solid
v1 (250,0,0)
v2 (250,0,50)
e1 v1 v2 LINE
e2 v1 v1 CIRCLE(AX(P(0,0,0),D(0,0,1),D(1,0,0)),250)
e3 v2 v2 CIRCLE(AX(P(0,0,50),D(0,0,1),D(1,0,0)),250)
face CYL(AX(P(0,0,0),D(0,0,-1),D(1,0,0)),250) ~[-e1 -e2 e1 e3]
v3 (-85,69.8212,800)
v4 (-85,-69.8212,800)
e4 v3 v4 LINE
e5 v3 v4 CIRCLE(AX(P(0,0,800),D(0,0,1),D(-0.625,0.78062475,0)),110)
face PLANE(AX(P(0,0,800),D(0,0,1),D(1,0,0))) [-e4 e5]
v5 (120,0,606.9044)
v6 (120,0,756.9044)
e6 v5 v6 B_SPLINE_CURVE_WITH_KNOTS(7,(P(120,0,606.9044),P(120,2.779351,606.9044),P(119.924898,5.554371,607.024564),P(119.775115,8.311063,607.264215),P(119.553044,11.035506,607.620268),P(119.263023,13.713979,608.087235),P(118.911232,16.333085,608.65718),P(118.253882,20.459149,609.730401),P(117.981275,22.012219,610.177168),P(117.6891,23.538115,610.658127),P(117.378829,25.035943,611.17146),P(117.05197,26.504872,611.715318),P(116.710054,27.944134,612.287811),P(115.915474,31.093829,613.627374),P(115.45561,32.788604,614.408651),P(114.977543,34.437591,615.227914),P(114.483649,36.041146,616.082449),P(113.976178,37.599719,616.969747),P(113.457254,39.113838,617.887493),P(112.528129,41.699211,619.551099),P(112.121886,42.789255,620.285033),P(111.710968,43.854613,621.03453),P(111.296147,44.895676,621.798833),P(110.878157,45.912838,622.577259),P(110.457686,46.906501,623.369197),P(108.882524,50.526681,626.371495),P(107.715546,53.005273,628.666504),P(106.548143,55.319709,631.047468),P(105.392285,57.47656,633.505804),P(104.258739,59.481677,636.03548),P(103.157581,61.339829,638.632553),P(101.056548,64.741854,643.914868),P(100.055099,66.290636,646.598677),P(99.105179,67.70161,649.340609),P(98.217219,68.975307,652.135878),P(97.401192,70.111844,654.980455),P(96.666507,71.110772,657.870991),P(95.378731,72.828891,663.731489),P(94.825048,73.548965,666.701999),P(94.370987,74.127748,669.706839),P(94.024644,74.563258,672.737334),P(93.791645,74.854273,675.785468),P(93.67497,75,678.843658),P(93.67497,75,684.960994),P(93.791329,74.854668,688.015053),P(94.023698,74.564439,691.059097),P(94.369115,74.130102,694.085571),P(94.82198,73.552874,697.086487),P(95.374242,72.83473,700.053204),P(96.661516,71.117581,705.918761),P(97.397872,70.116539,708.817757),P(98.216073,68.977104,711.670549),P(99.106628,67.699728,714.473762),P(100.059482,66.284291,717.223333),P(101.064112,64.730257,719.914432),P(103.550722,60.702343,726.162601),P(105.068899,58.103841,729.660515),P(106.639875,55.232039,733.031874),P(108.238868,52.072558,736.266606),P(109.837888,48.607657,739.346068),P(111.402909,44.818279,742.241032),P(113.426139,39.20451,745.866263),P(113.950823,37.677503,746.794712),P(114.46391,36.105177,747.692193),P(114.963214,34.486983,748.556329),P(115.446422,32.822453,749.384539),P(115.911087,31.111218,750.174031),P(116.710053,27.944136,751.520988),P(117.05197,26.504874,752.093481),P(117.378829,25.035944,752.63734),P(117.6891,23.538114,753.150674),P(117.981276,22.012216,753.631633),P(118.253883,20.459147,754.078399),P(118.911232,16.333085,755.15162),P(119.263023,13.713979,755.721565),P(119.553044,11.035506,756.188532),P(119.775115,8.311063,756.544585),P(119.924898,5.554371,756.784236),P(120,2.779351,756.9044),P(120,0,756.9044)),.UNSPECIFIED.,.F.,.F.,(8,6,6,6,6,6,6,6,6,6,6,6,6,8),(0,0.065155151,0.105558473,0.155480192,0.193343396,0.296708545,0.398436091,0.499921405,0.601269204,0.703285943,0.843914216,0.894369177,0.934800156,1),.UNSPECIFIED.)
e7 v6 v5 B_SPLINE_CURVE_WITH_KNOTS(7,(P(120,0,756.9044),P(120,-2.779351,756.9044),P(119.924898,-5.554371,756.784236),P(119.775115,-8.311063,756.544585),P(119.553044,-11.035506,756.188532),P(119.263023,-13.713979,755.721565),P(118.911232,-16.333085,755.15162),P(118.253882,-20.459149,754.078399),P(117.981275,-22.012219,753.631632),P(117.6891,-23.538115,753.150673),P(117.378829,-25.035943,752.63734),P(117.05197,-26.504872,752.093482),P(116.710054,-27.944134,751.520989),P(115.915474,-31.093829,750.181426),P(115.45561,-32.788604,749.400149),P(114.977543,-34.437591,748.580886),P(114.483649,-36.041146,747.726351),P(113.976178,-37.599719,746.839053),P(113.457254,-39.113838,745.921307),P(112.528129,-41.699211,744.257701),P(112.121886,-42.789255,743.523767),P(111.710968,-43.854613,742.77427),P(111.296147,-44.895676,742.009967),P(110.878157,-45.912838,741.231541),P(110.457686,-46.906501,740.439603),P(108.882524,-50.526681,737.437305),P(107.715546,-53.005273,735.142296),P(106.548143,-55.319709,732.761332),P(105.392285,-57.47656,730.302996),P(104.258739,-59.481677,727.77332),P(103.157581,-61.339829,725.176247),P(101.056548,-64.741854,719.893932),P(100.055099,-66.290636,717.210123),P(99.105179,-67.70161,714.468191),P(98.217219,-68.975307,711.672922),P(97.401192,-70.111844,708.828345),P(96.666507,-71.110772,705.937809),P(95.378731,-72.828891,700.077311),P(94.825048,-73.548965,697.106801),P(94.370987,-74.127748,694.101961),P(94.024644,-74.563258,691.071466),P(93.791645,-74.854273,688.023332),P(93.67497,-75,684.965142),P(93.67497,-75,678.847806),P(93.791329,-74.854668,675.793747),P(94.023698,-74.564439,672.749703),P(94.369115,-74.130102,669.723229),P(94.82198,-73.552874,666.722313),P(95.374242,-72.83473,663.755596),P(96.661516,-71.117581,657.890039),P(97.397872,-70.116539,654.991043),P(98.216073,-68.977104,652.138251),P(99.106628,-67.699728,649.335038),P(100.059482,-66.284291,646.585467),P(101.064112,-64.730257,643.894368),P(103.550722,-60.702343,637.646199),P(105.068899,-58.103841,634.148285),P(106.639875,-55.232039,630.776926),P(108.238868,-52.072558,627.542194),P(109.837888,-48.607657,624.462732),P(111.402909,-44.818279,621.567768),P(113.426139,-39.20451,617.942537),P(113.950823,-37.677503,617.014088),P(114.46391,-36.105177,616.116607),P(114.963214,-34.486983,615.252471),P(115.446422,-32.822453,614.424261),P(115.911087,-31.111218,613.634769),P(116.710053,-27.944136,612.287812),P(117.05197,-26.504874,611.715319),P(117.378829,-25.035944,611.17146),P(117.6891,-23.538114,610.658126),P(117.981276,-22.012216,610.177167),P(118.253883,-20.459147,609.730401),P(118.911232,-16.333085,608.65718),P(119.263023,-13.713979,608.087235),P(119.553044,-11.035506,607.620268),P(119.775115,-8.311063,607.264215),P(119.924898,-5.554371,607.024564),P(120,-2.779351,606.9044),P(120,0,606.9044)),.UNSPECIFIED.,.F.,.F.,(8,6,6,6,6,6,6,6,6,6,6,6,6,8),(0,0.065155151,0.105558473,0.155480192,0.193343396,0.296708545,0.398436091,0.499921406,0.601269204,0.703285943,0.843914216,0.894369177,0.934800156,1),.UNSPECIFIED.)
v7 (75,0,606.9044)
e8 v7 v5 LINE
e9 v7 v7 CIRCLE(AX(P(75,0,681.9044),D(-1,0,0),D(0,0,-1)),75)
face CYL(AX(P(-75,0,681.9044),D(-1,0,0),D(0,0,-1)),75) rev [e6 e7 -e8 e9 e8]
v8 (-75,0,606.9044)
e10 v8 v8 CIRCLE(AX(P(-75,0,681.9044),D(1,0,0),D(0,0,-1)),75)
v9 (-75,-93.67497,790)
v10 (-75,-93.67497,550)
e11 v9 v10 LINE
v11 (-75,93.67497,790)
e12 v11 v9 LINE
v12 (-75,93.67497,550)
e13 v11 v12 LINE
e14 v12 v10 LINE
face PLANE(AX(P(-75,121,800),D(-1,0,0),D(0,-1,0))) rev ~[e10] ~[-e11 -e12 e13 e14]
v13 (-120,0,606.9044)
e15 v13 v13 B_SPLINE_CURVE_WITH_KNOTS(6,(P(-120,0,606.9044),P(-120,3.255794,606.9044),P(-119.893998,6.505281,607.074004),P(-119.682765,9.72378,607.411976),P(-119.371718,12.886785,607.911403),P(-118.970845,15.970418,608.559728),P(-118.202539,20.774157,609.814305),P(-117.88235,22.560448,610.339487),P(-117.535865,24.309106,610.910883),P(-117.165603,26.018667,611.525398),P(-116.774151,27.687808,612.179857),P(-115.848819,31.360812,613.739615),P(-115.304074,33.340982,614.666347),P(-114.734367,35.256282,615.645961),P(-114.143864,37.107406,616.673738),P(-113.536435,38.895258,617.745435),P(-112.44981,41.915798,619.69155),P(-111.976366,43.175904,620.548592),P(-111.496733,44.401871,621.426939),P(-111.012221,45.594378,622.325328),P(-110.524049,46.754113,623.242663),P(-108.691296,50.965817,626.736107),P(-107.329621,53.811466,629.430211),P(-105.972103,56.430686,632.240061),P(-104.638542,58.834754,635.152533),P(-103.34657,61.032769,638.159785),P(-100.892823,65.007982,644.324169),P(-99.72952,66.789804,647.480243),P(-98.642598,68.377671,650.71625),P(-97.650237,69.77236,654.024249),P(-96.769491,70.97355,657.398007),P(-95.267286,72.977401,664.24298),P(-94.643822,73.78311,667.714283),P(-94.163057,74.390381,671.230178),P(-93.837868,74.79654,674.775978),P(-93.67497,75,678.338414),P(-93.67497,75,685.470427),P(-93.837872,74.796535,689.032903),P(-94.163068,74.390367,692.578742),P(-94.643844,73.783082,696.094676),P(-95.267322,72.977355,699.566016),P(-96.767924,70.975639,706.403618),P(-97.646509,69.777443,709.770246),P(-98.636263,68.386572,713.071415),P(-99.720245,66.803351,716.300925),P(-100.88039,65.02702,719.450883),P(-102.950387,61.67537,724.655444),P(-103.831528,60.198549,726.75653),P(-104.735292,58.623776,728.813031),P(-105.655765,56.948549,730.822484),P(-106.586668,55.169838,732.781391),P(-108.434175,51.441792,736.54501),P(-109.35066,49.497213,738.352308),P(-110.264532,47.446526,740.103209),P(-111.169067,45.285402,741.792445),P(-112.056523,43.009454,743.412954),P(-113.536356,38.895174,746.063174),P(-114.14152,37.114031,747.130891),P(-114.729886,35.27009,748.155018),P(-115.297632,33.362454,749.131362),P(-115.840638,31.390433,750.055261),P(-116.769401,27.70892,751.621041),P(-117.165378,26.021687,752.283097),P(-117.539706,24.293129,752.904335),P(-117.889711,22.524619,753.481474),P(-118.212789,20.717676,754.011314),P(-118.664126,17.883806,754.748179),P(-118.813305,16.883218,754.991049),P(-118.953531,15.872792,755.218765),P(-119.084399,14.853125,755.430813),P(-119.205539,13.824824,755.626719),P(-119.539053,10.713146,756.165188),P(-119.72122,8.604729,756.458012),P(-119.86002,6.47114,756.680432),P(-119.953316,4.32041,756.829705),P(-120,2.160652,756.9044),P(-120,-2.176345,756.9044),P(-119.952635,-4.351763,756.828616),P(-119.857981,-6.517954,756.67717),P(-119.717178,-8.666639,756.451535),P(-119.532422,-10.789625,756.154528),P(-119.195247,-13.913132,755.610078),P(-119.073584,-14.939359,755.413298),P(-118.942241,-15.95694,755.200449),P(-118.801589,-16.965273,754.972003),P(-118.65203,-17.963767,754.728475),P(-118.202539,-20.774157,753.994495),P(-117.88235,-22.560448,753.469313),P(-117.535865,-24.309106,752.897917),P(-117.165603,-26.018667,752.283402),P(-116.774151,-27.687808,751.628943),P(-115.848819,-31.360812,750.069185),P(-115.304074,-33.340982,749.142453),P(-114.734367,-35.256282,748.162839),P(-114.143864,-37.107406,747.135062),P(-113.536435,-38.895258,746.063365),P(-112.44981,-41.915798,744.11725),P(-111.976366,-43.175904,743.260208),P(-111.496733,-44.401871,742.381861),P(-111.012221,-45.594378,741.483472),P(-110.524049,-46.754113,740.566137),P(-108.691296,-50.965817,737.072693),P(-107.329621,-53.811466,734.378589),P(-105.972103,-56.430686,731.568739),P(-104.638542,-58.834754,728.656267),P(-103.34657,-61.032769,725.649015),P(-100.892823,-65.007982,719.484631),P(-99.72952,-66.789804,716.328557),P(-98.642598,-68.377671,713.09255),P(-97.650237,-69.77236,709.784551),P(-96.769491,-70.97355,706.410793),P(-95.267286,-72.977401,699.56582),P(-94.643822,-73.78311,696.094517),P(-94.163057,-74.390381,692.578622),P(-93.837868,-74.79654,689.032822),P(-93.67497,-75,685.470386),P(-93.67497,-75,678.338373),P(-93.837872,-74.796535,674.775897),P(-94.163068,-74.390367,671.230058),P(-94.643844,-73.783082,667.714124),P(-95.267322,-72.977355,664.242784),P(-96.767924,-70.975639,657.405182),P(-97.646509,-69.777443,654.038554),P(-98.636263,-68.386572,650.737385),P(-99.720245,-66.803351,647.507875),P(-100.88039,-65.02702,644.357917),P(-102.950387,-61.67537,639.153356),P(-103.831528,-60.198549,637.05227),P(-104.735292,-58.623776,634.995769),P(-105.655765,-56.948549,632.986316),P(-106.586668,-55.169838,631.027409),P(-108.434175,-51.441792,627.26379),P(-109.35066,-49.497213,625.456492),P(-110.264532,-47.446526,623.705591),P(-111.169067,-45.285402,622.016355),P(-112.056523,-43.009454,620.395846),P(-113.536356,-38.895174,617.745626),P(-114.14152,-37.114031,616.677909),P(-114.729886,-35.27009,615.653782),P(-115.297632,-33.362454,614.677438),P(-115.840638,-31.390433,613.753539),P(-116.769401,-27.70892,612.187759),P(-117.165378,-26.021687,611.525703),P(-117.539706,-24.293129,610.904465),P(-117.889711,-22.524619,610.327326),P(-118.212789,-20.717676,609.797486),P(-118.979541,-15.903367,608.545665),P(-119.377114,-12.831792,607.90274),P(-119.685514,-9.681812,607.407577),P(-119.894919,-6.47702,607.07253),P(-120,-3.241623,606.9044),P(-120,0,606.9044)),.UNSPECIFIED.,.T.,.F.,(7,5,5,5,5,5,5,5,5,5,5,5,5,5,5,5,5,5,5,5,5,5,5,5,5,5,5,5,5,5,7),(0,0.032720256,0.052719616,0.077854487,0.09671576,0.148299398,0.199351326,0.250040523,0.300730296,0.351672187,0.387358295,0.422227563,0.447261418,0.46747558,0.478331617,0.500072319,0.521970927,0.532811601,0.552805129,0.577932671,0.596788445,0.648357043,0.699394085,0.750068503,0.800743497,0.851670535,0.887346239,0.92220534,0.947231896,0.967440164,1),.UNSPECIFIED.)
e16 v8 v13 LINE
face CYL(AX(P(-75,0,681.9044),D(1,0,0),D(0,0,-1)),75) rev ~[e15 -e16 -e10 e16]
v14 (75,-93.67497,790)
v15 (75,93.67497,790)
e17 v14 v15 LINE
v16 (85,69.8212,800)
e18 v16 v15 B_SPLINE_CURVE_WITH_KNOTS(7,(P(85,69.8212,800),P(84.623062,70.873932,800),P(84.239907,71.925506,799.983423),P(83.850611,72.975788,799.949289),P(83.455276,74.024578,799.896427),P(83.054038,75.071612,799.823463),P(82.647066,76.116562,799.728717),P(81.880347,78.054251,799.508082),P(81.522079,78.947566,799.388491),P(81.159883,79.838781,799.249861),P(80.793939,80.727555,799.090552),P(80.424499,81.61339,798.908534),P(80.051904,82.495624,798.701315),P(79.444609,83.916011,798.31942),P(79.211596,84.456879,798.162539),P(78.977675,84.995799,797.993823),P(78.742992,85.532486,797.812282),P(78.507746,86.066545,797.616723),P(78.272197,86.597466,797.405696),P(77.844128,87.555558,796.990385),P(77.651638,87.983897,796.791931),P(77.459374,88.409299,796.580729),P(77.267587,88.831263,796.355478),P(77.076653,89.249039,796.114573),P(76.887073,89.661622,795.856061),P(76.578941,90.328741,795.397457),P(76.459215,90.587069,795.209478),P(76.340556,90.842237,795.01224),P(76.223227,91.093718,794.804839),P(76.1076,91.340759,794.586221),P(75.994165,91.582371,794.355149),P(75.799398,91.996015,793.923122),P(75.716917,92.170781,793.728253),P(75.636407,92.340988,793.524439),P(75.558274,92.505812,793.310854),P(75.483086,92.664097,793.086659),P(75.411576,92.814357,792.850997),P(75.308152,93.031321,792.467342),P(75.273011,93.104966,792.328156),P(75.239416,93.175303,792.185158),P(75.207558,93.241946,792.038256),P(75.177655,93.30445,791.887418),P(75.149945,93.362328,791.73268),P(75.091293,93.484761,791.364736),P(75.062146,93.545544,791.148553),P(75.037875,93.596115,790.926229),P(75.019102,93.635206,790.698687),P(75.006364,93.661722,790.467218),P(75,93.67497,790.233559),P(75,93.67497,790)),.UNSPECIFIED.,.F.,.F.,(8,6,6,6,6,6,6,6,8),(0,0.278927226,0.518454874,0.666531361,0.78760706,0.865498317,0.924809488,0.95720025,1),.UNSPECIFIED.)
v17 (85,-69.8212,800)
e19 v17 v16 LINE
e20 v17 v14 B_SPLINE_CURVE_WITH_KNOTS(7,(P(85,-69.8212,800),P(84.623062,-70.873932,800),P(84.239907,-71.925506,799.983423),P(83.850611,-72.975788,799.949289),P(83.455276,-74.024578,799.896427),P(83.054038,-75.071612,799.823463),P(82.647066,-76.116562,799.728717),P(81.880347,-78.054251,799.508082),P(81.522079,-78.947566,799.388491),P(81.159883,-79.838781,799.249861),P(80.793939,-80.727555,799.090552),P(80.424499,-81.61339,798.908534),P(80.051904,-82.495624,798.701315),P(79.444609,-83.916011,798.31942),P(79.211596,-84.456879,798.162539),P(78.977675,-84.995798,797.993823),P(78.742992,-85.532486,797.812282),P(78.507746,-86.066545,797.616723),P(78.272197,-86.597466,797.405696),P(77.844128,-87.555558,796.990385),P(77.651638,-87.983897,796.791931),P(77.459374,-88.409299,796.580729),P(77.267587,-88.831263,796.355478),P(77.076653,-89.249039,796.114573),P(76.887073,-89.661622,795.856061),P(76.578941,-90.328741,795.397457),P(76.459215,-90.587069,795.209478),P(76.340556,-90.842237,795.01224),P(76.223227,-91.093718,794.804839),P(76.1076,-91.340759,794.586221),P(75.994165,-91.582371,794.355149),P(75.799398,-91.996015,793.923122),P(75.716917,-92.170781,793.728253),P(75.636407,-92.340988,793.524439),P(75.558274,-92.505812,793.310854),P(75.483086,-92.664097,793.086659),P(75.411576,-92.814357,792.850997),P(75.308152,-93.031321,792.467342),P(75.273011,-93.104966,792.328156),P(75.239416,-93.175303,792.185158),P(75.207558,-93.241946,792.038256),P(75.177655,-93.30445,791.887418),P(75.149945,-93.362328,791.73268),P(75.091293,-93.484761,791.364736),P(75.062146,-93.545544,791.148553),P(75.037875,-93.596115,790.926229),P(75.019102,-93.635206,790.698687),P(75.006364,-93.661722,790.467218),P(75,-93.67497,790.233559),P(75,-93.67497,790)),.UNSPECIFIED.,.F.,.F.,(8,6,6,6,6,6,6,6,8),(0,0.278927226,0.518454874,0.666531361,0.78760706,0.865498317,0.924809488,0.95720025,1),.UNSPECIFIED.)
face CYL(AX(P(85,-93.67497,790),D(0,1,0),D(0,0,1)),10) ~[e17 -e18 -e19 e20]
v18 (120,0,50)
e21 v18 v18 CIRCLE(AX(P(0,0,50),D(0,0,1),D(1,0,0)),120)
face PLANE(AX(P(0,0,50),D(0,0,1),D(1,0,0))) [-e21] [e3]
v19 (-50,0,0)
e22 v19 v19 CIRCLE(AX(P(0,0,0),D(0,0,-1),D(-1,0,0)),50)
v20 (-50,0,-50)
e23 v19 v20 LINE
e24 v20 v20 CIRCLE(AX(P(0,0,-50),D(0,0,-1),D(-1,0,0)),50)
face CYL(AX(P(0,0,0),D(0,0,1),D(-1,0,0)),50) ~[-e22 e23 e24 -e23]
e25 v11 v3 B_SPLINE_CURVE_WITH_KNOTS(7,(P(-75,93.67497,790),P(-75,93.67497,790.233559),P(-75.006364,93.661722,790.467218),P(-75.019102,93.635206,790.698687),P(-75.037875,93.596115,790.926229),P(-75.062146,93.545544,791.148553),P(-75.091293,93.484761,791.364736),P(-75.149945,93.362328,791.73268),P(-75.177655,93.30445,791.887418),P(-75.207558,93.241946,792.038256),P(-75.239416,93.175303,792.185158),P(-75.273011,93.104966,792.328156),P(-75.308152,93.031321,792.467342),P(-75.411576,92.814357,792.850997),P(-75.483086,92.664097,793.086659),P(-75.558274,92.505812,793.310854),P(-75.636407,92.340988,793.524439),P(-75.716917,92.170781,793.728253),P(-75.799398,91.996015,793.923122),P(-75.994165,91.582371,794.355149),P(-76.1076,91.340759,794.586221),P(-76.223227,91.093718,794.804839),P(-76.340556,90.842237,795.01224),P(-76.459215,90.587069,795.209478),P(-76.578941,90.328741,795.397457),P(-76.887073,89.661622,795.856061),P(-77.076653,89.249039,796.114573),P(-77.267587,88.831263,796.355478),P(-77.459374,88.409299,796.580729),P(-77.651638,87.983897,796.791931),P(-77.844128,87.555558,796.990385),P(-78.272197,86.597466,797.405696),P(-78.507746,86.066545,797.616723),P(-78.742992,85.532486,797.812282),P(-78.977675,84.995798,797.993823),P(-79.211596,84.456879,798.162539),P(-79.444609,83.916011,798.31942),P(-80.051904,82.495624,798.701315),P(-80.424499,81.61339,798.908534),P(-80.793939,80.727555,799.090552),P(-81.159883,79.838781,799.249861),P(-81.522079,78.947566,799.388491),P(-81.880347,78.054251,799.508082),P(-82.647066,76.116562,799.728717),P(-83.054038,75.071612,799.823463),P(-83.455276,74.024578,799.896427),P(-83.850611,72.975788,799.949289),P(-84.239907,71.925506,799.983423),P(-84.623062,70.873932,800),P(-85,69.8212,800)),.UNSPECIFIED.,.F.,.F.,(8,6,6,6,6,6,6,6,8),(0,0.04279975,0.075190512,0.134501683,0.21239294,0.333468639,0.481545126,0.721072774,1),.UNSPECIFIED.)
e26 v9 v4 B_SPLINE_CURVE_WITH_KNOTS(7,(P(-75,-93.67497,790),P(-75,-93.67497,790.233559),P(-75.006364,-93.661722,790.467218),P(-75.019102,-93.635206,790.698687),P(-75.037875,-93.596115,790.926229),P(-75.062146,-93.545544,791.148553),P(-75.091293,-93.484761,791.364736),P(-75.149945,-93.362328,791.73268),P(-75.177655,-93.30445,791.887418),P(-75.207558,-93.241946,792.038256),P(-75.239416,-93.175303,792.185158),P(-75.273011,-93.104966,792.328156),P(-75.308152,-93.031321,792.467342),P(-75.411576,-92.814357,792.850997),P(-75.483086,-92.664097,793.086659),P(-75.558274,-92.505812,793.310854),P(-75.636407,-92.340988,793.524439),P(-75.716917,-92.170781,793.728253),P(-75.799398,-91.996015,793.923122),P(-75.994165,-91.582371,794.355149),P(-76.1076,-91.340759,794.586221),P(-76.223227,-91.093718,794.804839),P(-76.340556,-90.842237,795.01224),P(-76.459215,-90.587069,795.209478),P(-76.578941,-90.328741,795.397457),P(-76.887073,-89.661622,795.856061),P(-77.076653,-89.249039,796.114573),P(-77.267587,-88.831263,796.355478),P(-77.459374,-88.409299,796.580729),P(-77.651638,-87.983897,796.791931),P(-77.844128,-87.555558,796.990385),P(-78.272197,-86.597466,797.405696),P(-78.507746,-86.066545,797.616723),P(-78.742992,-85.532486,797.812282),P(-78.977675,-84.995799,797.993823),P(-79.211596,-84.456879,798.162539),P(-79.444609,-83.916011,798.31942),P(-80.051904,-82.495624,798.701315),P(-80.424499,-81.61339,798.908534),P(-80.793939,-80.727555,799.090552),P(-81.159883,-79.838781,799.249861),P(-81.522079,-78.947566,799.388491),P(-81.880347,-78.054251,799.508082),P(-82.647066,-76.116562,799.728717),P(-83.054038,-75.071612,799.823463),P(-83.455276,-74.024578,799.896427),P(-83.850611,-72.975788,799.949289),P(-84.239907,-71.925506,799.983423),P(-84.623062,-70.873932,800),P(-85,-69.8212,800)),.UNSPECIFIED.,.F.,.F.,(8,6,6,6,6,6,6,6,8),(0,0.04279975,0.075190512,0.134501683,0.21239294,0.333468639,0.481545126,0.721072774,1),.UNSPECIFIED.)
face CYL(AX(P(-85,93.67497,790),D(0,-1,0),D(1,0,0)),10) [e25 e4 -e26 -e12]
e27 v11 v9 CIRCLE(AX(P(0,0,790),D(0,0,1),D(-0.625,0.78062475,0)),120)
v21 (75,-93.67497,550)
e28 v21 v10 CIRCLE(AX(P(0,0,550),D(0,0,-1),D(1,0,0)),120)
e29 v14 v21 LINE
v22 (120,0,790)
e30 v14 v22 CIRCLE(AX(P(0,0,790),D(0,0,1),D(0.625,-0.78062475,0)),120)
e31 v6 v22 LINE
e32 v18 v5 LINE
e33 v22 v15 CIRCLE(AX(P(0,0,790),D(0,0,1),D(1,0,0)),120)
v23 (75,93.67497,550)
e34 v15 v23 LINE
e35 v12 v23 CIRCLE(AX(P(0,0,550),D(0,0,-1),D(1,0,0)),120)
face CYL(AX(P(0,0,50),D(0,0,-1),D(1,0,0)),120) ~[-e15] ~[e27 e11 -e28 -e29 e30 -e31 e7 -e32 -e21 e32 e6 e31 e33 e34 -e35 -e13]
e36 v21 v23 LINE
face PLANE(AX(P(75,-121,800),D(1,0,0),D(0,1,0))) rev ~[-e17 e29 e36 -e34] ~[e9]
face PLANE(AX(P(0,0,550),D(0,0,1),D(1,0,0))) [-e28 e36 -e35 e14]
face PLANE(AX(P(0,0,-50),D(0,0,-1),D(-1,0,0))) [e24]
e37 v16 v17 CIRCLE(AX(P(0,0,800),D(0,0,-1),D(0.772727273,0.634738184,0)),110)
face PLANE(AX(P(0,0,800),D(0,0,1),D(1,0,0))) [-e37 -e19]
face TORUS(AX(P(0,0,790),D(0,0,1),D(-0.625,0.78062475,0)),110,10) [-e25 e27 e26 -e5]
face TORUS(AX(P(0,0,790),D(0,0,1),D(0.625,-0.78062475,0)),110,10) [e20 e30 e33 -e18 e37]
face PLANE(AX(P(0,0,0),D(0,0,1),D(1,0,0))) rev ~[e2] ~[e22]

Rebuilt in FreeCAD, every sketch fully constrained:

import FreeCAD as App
import Part
import Sketcher
from FreeCAD import Vector


def edges_at(feature, points):
    """Names of the edges that pass closest to the given points."""
    edges = feature.Shape.Edges
    near = lambda p: min(range(len(edges)), key=lambda i: edges[i].distToShape(Part.Vertex(*p))[0])
    return sorted({f"Edge{near(p) + 1}" for p in points})

doc = App.newDocument("Part")
body = doc.addObject("PartDesign::Body", "Body")

# Sketch on XY plane
sketch1 = body.newObject("Sketcher::SketchObject", "Sketch")
sketch1.AttachmentSupport = (doc.getObject("XY_Plane"), [""])
sketch1.MapMode = "FlatFace"
sketch1.addGeometry(Part.Circle(Vector(0, 0, 0), Vector(0, 0, 1), 250), False)
sketch1.addConstraint([
    Sketcher.Constraint("Coincident", 0, 3, -1, 1),
    Sketcher.Constraint("Diameter", 0, 500.0),
])
pad1 = body.newObject("PartDesign::Pad", "Pad")
pad1.Profile = sketch1
pad1.Length = 50

# Sketch on XY plane
sketch2 = body.newObject("Sketcher::SketchObject", "Sketch001")
sketch2.AttachmentSupport = (doc.getObject("XY_Plane"), [""])
sketch2.MapMode = "FlatFace"
sketch2.AttachmentOffset = App.Placement(Vector(0, 0, 50), App.Rotation())
sketch2.addGeometry(Part.Circle(Vector(0, 0, 0), Vector(0, 0, 1), 120), False)
sketch2.addConstraint([
    Sketcher.Constraint("Coincident", 0, 3, -1, 1),
    Sketcher.Constraint("Diameter", 0, 240.0),
])
pad2 = body.newObject("PartDesign::Pad", "Pad001")
pad2.Profile = sketch2
pad2.Length = 750

# Sketch on XY plane
sketch3 = body.newObject("Sketcher::SketchObject", "Sketch002")
sketch3.AttachmentSupport = (doc.getObject("XY_Plane"), [""])
sketch3.MapMode = "FlatFace"
sketch3.AttachmentOffset = App.Placement(Vector(0, 0, 800), App.Rotation())
sketch3.addGeometry([
    Part.LineSegment(Vector(-75, 121, 0), Vector(-75, -121, 0)),
    Part.LineSegment(Vector(-75, -121, 0), Vector(75, -121, 0)),
    Part.LineSegment(Vector(75, -121, 0), Vector(75, 121, 0)),
    Part.LineSegment(Vector(75, 121, 0), Vector(-75, 121, 0)),
], False)
sketch3.addConstraint([
    Sketcher.Constraint("Coincident", 0, 2, 1, 1),
    Sketcher.Constraint("Coincident", 1, 2, 2, 1),
    Sketcher.Constraint("Coincident", 2, 2, 3, 1),
    Sketcher.Constraint("Coincident", 3, 2, 0, 1),
    Sketcher.Constraint("Vertical", 0),
    Sketcher.Constraint("Horizontal", 1),
    Sketcher.Constraint("Vertical", 2),
    Sketcher.Constraint("Horizontal", 3),
    Sketcher.Constraint("Symmetric", 0, 2, 2, 2, -1, 1),
    Sketcher.Constraint("DistanceX", 1, 1, 1, 2, 150.0),
    Sketcher.Constraint("DistanceY", 0, 2, -1, 1, 121.0),
])
pocket1 = body.newObject("PartDesign::Pocket", "Pocket")
pocket1.Profile = sketch3
pocket1.Length = 250

# Sketch on YZ plane
sketch4 = body.newObject("Sketcher::SketchObject", "Sketch003")
sketch4.AttachmentSupport = (doc.getObject("YZ_Plane"), [""])
sketch4.MapMode = "FlatFace"
sketch4.AttachmentOffset = App.Placement(Vector(0, 0, -75), App.Rotation())
sketch4.addGeometry(Part.Circle(Vector(0, 681.9044, 0), Vector(0, 0, 1), 75), False)
sketch4.addConstraint([
    Sketcher.Constraint("PointOnObject", 0, 3, -2),
    Sketcher.Constraint("Diameter", 0, 150.0),
    Sketcher.Constraint("DistanceY", -1, 1, 0, 3, 681.9044),
])
pocket2 = body.newObject("PartDesign::Pocket", "Pocket001")
pocket2.Profile = sketch4
pocket2.Length = 500
pocket2.Midplane = True
doc.recompute()

fillet = body.newObject("PartDesign::Fillet", "Fillet")
fillet.Base = (pocket2, edges_at(pocket2, [
    (-120, 0, 800),
    (-75, 0, 800),
    (75, 0, 800),
    (108.166, -51.962, 800),
    (108.166, 51.962, 800),
]))
fillet.Radius = 10

# Sketch on XY plane
sketch5 = body.newObject("Sketcher::SketchObject", "Sketch004")
sketch5.AttachmentSupport = (doc.getObject("XY_Plane"), [""])
sketch5.MapMode = "FlatFace"
sketch5.addGeometry(Part.Circle(Vector(0, 0, 0), Vector(0, 0, 1), 50), False)
sketch5.addConstraint([
    Sketcher.Constraint("Coincident", 0, 3, -1, 1),
    Sketcher.Constraint("Diameter", 0, 100.0),
])
pad3 = body.newObject("PartDesign::Pad", "Pad002")
pad3.Profile = sketch5
pad3.Length = 50
pad3.Reversed = True

doc.recompute()
